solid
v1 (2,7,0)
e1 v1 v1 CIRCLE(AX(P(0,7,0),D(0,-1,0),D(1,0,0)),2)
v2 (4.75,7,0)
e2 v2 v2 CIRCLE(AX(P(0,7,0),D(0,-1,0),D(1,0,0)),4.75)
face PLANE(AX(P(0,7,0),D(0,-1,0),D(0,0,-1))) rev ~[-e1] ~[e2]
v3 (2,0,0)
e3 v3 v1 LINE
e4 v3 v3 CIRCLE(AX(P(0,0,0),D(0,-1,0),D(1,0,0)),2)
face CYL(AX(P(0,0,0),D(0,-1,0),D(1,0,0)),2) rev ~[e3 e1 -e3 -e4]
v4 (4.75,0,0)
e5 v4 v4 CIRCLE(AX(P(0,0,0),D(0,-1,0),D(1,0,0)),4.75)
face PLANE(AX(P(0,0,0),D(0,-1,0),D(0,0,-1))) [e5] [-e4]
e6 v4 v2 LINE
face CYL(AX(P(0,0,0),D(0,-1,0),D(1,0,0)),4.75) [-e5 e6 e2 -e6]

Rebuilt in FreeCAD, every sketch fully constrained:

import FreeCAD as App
import Part
import Sketcher

V = App.Vector
Q = App.Units.Quantity

doc = App.newDocument("Part")
body = doc.addObject("PartDesign::Body", "Body")

# Sketch on XZ plane
sketch1 = body.newObject("Sketcher::SketchObject", "Sketch")
sketch1.AttachmentSupport = (doc.getObject("XZ_Plane"), [""])
sketch1.MapMode = "FlatFace"
sketch1.addGeometry(Part.Circle(V(0, 0, 0), V(0, 0, 1), 4.8), False)
sketch1.addGeometry(Part.Circle(V(0, 0, 0), V(0, 0, 1), 2), False)
sketch1.addConstraint(Sketcher.Constraint("Coincident", 0, 3, -1, 1))
sketch1.addConstraint(Sketcher.Constraint("Coincident", 1, 3, -1, 1))
sketch1.addConstraint(Sketcher.Constraint("Diameter", 1, Q("4 mm")))
sketch1.addConstraint(Sketcher.Constraint("Diameter", 0, Q("9.5 mm")))
pad1 = body.newObject("PartDesign::Pad", "Pad")
pad1.Profile = sketch1
pad1.Length = 7
pad1.Reversed = True

doc.recompute()
